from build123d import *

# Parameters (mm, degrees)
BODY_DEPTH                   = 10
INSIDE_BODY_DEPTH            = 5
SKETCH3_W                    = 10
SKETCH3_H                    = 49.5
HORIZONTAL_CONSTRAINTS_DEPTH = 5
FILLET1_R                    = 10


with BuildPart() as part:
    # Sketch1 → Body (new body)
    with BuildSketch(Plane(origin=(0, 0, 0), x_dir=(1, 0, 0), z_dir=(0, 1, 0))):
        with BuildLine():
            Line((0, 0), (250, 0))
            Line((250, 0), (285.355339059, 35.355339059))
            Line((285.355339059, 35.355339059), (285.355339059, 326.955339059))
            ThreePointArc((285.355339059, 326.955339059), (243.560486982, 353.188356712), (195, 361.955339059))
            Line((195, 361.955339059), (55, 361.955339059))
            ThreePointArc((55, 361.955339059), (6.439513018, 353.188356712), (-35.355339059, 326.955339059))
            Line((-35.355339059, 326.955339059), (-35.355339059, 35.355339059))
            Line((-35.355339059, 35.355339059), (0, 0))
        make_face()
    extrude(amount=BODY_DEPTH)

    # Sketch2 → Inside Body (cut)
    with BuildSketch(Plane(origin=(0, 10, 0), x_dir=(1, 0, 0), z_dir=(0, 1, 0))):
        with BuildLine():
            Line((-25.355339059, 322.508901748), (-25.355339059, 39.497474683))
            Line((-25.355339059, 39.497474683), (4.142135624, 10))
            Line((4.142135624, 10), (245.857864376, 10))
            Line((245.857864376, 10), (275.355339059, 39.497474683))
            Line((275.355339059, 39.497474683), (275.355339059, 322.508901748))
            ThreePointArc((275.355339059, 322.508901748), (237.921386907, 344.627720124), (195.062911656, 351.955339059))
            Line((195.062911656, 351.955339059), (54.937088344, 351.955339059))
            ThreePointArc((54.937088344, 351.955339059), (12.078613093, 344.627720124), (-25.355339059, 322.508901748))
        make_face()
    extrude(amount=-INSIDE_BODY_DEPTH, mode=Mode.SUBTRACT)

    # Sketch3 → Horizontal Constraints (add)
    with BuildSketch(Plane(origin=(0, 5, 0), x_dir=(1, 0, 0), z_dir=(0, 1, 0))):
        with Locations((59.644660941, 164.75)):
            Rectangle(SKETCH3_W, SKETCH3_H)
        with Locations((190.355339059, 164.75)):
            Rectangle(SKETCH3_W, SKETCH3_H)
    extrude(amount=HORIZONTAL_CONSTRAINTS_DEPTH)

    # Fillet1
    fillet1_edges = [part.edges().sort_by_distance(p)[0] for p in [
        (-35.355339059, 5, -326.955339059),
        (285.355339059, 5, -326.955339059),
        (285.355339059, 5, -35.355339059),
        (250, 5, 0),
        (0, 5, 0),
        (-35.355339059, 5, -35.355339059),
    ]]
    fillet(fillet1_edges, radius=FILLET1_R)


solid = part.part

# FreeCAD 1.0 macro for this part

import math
import FreeCAD as App
import Part
import Sketcher
from FreeCAD import Vector


def edges_at(feature, points):
    """Names of the edges that pass closest to the given points."""
    edges = feature.Shape.Edges
    near = lambda p: min(range(len(edges)), key=lambda i: edges[i].distToShape(Part.Vertex(*p))[0])
    return sorted({f"Edge{near(p) + 1}" for p in points})

doc = App.newDocument("Part")
params = doc.addObject("Spreadsheet::Sheet", "Params")
for row, (alias, value) in enumerate([
    ("sketch1_radius", "130 mm"),
    ("sketch1_width", "250 mm"),
    ("sketch1_width2", "140 mm"),
    ("sketch1_length", "50 mm"),
    ("sketch1_height", "291.6 mm"),
    ("pad1_length", "10 mm"),
    ("sketch2_radius", "120 mm"),
    ("pocket1_length", "5 mm"),
    ("sketch3_width", "10 mm"),
    ("sketch3_height", "49.5 mm"),
    ("pad2_length", "5 mm"),
    ("fillet_radius", "10 mm"),
], start=1):
    params.set(f"A{row}", alias)
    params.set(f"B{row}", "=" + value)
    params.setAlias(f"B{row}", alias)

body = doc.addObject("PartDesign::Body", "Body")

sketch1 = body.newObject("Sketcher::SketchObject", "Sketch")
sketch1.AttachmentSupport = (doc.getObject("XZ_Plane"), [""])
sketch1.MapMode = "FlatFace"
sketch1.addGeometry([
    Part.LineSegment(Vector(0, 0, 0), Vector(250, 0, 0)),
    Part.LineSegment(Vector(250, 0, 0), Vector(285, -35, 0)),
    Part.LineSegment(Vector(285, -35, 0), Vector(285, -327, 0)),
    Part.ArcOfCircle(Part.Circle(Vector(197, -232, 0), Vector(0, 0, 1), 130), math.radians(-91), math.radians(-47)),
    Part.LineSegment(Vector(195, -362, 0), Vector(55, -362, 0)),
    Part.ArcOfCircle(Part.Circle(Vector(53, -232, 0), Vector(0, 0, 1), 130), math.radians(-133), math.radians(-89)),
    Part.LineSegment(Vector(-35, -327, 0), Vector(-35, -35, 0)),
    Part.LineSegment(Vector(-35, -35, 0), Vector(0, 0, 0)),
], False)
sketch1.addConstraint([
    Sketcher.Constraint("Coincident", 0, 2, 1, 1),
    Sketcher.Constraint("Coincident", 1, 2, 2, 1),
    Sketcher.Constraint("Coincident", 2, 2, 3, 2),
    Sketcher.Constraint("Coincident", 3, 1, 4, 1),
    Sketcher.Constraint("Coincident", 4, 2, 5, 2),
    Sketcher.Constraint("Coincident", 5, 1, 6, 1),
    Sketcher.Constraint("Coincident", 6, 2, 7, 1),
    Sketcher.Constraint("Coincident", 7, 2, 0, 1),
    Sketcher.Constraint("Horizontal", 0),
    Sketcher.Constraint("Vertical", 2),
    Sketcher.Constraint("Horizontal", 4),
    Sketcher.Constraint("Vertical", 6),
    Sketcher.Constraint("Coincident", 7, 2, -1, 1),
    Sketcher.Constraint("Equal", 3, 5),
    Sketcher.Constraint("Perpendicular", 1, 7),
    Sketcher.Constraint("Horizontal", 3, 3, 5, 3),
    Sketcher.Constraint("Horizontal", 2, 2, 5, 1),
    Sketcher.Constraint("Horizontal", 1, 2, 6, 2),
    Sketcher.Constraint("Equal", 1, 7),
    Sketcher.Constraint("Radius", 3, 130.0),
    Sketcher.Constraint("DistanceX", 0, 1, 0, 2, 250.0),
    Sketcher.Constraint("DistanceX", 4, 2, 4, 1, 140.0),
    Sketcher.Constraint("Distance", 1, 50.0),
    Sketcher.Constraint("DistanceY", 2, 2, 2, 1, 291.6),
    Sketcher.Constraint("DistanceY", 3, 1, 2, 2, 35.0),
])
sketch1.setExpression("Constraints[19]", "Params.sketch1_radius")
sketch1.setExpression("Constraints[20]", "Params.sketch1_width")
sketch1.setExpression("Constraints[21]", "Params.sketch1_width2")
sketch1.setExpression("Constraints[22]", "Params.sketch1_length")
sketch1.setExpression("Constraints[23]", "Params.sketch1_height")
pad1 = body.newObject("PartDesign::Pad", "Pad")
pad1.Profile = sketch1
pad1.setExpression("Length", "Params.pad1_length")
pad1.Reversed = True

sketch2 = body.newObject("Sketcher::SketchObject", "Sketch001")
sketch2.AttachmentSupport = (doc.getObject("XZ_Plane"), [""])
sketch2.MapMode = "FlatFace"
sketch2.AttachmentOffset = App.Placement(Vector(0, 0, -10), App.Rotation())
sketch2.addGeometry([
    Part.LineSegment(Vector(-25, -323, 0), Vector(-25, -39, 0)),
    Part.LineSegment(Vector(-25, -39, 0), Vector(4, -10, 0)),
    Part.LineSegment(Vector(4, -10, 0), Vector(246, -10, 0)),
    Part.LineSegment(Vector(246, -10, 0), Vector(275, -39, 0)),
    Part.LineSegment(Vector(275, -39, 0), Vector(275, -323, 0)),
    Part.ArcOfCircle(Part.Circle(Vector(197, -232, 0), Vector(0, 0, 1), 120), math.radians(-91), math.radians(-49)),
    Part.LineSegment(Vector(195, -352, 0), Vector(55, -352, 0)),
    Part.ArcOfCircle(Part.Circle(Vector(53, -232, 0), Vector(0, 0, 1), 120), math.radians(-131), math.radians(-89)),
], False)
sketch2.addConstraint([
    Sketcher.Constraint("Coincident", 0, 2, 1, 1),
    Sketcher.Constraint("Coincident", 1, 2, 2, 1),
    Sketcher.Constraint("Coincident", 2, 2, 3, 1),
    Sketcher.Constraint("Coincident", 3, 2, 4, 1),
    Sketcher.Constraint("Coincident", 4, 2, 5, 2),
    Sketcher.Constraint("Coincident", 5, 1, 6, 1),
    Sketcher.Constraint("Coincident", 6, 2, 7, 2),
    Sketcher.Constraint("Coincident", 7, 1, 0, 1),
    Sketcher.Constraint("Vertical", 0),
    Sketcher.Constraint("Horizontal", 2),
    Sketcher.Constraint("Vertical", 4),
    Sketcher.Constraint("Horizontal", 6),
    Sketcher.Constraint("Equal", 5, 7),
    Sketcher.Constraint("Perpendicular", 1, 3),
    Sketcher.Constraint("Horizontal", 5, 3, 7, 3),
    Sketcher.Constraint("Horizontal", 0, 2, 3, 2),
    Sketcher.Constraint("Horizontal", 4, 2, 7, 1),
    Sketcher.Constraint("Equal", 1, 3),
    Sketcher.Constraint("Radius", 5, 120.0),
    Sketcher.Constraint("DistanceY", 1, 2, -1, 1, 10.0),
    Sketcher.Constraint("DistanceX", 2, 1, 2, 2, 241.715729),
    Sketcher.Constraint("DistanceY", 4, 2, -1, 1, 322.508902),
    Sketcher.Constraint("Distance", 1, 41.715729),
    Sketcher.Constraint("DistanceX", 6, 2, 6, 1, 140.125823),
    Sketcher.Constraint("DistanceY", 5, 3, -1, 1, 231.965229),
    Sketcher.Constraint("DistanceX", 0, 2, -1, 1, 25.355339),
])
sketch2.setExpression("Constraints[18]", "Params.sketch2_radius")
pocket1 = body.newObject("PartDesign::Pocket", "Pocket")
pocket1.Profile = sketch2
pocket1.setExpression("Length", "Params.pocket1_length")
pocket1.Reversed = True

sketch3 = body.newObject("Sketcher::SketchObject", "Sketch002")
sketch3.AttachmentSupport = (doc.getObject("XZ_Plane"), [""])
sketch3.MapMode = "FlatFace"
sketch3.AttachmentOffset = App.Placement(Vector(0, 0, -5), App.Rotation())
sketch3.addGeometry([
    Part.LineSegment(Vector(55, -190, 0), Vector(55, -140, 0)),
    Part.LineSegment(Vector(55, -140, 0), Vector(65, -140, 0)),
    Part.LineSegment(Vector(65, -140, 0), Vector(65, -190, 0)),
    Part.LineSegment(Vector(65, -190, 0), Vector(55, -190, 0)),
    Part.LineSegment(Vector(185, -190, 0), Vector(185, -140, 0)),
    Part.LineSegment(Vector(185, -140, 0), Vector(195, -140, 0)),
    Part.LineSegment(Vector(195, -140, 0), Vector(195, -190, 0)),
    Part.LineSegment(Vector(195, -190, 0), Vector(185, -190, 0)),
], False)
sketch3.addConstraint([
    Sketcher.Constraint("Coincident", 0, 2, 1, 1),
    Sketcher.Constraint("Coincident", 1, 2, 2, 1),
    Sketcher.Constraint("Coincident", 2, 2, 3, 1),
    Sketcher.Constraint("Coincident", 3, 2, 0, 1),
    Sketcher.Constraint("Coincident", 4, 2, 5, 1),
    Sketcher.Constraint("Coincident", 5, 2, 6, 1),
    Sketcher.Constraint("Coincident", 6, 2, 7, 1),
    Sketcher.Constraint("Coincident", 7, 2, 4, 1),
    Sketcher.Constraint("Vertical", 0),
    Sketcher.Constraint("Horizontal", 1),
    Sketcher.Constraint("Vertical", 2),
    Sketcher.Constraint("Horizontal", 3),
    Sketcher.Constraint("Vertical", 4),
    Sketcher.Constraint("Horizontal", 5),
    Sketcher.Constraint("Vertical", 6),
    Sketcher.Constraint("Horizontal", 7),
    Sketcher.Constraint("Horizontal", 1, 2, 4, 2),
    Sketcher.Constraint("Horizontal", 3, 2, 6, 2),
    Sketcher.Constraint("Equal", 3, 5),
    Sketcher.Constraint("DistanceX", 1, 1, 1, 2, 10.0),
    Sketcher.Constraint("DistanceY", 0, 1, 0, 2, 49.5),
    Sketcher.Constraint("DistanceY", 0, 2, -1, 1, 140.0),
    Sketcher.Constraint("DistanceX", -1, 1, 0, 2, 54.644661),
    Sketcher.Constraint("DistanceX", -1, 1, 4, 2, 185.355339),
])
sketch3.setExpression("Constraints[19]", "Params.sketch3_width")
sketch3.setExpression("Constraints[20]", "Params.sketch3_height")
pad2 = body.newObject("PartDesign::Pad", "Pad001")
pad2.Profile = sketch3
pad2.setExpression("Length", "Params.pad2_length")
pad2.Reversed = True
doc.recompute()

fillet = body.newObject("PartDesign::Fillet", "Fillet")
fillet.Base = (pad2, edges_at(pad2, [
    (-35.355, 5, -326.955),
    (285.355, 5, -326.955),
    (285.355, 5, -35.355),
    (250, 5, 0),
    (0, 5, 0),
    (-35.355, 5, -35.355),
]))
fillet.setExpression("Radius", "Params.fillet_radius")

doc.recompute()
